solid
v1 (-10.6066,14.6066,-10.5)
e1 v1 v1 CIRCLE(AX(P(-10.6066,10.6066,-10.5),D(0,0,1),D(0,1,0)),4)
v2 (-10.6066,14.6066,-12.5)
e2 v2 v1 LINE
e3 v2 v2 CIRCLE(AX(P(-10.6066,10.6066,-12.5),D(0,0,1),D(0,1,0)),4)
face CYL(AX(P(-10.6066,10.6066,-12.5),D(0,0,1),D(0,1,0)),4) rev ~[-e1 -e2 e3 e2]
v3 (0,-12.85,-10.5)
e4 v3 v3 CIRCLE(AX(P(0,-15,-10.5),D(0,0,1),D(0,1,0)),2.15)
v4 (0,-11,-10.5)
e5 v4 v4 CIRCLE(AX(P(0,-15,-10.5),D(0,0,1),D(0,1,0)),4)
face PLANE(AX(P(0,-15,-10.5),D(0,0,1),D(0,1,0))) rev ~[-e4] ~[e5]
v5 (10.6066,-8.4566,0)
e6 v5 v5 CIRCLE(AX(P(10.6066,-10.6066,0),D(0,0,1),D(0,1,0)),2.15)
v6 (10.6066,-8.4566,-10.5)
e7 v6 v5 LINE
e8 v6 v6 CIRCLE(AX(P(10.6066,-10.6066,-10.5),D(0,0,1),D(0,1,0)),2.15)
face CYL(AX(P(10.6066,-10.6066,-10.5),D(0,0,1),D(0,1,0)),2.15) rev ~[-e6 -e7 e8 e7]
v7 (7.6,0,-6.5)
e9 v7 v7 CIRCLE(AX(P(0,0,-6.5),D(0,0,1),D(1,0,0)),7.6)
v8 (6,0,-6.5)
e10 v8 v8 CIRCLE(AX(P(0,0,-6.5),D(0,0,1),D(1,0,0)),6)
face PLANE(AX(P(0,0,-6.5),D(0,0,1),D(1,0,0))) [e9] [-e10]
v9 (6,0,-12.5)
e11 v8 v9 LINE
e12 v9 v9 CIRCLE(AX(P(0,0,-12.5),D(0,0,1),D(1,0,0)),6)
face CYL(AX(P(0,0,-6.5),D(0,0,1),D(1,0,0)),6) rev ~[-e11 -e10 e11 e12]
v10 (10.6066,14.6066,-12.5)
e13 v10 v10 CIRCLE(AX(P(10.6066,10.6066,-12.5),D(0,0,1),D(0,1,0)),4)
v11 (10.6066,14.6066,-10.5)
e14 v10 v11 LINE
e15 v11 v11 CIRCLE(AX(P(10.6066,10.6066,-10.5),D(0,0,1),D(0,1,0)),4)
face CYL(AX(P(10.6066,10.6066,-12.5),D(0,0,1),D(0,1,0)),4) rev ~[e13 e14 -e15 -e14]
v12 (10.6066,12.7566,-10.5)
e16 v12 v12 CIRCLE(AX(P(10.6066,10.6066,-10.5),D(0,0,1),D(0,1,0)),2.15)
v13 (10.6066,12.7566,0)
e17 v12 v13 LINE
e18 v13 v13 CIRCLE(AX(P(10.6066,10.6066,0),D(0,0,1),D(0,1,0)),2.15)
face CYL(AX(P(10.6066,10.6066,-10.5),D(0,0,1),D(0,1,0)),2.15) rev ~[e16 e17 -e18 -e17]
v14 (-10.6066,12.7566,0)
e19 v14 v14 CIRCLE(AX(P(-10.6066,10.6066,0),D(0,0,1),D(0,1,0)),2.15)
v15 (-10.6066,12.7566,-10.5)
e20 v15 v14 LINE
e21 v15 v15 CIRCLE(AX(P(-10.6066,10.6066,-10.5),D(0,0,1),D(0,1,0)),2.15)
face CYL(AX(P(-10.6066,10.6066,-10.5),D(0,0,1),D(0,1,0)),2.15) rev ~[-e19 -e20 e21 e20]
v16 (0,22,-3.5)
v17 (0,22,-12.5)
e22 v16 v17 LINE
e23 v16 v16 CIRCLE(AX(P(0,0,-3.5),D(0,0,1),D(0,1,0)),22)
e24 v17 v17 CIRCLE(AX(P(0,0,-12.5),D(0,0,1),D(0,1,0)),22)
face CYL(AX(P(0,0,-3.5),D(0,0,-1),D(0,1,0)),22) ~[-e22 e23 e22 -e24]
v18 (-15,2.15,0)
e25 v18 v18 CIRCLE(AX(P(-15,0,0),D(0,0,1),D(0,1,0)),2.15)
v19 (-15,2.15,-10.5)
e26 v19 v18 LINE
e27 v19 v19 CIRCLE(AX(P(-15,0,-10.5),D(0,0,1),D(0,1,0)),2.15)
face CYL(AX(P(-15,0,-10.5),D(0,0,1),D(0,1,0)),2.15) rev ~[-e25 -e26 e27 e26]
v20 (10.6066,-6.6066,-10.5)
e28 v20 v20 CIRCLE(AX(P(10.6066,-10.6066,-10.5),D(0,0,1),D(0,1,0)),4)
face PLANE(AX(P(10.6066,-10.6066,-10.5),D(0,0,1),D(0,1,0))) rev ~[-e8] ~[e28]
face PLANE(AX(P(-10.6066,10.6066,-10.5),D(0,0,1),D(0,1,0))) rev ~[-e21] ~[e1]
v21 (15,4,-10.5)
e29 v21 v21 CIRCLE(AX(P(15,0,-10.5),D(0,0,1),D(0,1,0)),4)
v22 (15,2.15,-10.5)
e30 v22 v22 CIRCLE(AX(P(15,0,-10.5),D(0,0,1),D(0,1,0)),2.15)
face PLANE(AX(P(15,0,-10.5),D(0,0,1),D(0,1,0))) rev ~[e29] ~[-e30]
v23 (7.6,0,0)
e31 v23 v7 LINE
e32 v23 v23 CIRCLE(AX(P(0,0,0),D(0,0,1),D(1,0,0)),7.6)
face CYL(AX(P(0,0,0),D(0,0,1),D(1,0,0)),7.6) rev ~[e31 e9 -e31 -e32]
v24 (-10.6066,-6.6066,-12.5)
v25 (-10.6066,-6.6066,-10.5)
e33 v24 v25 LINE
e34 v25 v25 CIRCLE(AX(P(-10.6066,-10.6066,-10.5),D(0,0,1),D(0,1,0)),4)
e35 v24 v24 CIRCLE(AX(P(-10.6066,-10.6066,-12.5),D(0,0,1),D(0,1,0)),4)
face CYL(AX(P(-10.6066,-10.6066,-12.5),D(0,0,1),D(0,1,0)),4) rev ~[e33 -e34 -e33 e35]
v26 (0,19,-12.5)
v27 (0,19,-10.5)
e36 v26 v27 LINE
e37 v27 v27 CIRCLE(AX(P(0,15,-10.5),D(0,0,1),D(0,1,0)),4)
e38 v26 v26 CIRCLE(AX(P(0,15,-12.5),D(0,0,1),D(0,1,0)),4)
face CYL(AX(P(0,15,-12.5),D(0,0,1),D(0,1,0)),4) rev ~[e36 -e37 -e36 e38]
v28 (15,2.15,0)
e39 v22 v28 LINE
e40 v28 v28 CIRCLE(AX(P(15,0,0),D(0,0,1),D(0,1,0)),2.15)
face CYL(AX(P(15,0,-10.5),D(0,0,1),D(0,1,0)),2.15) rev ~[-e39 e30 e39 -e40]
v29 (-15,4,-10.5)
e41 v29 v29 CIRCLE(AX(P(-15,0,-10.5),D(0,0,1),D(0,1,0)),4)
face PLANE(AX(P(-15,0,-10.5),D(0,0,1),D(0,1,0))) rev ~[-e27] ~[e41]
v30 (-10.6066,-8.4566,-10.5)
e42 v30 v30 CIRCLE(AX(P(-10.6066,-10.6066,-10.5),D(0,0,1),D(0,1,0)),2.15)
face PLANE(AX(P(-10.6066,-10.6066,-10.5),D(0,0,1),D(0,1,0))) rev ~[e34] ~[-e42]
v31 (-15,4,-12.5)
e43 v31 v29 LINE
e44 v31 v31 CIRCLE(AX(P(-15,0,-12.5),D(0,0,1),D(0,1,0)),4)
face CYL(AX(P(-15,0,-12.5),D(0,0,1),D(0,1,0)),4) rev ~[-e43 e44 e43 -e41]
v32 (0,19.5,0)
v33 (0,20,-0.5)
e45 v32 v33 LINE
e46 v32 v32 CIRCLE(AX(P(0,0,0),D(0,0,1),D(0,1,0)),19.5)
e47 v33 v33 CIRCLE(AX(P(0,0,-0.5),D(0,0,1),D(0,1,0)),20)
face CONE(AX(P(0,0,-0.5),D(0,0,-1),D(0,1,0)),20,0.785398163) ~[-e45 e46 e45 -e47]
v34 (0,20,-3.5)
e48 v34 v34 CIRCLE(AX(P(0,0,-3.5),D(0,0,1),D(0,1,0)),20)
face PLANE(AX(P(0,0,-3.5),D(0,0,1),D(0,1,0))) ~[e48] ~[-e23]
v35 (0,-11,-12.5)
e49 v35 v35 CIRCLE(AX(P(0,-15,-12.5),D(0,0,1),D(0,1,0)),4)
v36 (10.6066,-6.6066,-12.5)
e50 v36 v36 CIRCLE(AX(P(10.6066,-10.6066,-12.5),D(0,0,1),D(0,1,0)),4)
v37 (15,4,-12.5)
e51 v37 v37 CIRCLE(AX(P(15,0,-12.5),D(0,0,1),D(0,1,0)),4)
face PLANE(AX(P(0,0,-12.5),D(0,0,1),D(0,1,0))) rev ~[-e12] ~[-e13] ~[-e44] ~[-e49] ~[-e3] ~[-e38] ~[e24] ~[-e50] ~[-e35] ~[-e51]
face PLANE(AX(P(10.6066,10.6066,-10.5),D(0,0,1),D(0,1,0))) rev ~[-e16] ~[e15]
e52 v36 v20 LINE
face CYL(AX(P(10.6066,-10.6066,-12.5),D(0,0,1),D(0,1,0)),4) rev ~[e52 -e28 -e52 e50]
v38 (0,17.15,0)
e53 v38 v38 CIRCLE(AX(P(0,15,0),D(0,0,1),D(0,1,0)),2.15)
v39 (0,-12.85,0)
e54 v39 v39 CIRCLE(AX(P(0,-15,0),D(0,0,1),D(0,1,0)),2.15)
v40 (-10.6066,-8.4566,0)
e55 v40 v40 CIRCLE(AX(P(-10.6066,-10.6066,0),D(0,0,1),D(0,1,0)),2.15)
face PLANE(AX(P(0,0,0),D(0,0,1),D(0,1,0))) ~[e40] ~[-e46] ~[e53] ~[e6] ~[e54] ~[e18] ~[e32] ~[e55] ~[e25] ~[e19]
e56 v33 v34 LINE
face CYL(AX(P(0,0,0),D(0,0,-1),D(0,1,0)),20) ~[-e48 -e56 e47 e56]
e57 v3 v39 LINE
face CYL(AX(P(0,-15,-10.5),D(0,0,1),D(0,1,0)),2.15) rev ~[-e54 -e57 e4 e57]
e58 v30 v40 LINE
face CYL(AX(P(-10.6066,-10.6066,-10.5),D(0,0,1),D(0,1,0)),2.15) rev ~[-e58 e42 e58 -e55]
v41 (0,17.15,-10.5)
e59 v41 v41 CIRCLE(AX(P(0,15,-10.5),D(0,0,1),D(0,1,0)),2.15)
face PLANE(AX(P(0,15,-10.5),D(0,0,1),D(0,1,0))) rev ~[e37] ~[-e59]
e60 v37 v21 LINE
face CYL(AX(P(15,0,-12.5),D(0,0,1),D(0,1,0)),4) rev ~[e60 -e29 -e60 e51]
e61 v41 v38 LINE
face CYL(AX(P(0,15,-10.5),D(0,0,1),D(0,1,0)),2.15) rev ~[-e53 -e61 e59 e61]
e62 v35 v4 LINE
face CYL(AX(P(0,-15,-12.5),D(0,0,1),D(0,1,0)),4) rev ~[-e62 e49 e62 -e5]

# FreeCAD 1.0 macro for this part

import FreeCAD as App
import Part
import Sketcher
from FreeCAD import Vector
Q = App.Units.Quantity


def edges_at(feature, points):
    """Names of the edges that pass closest to the given points."""
    edges = feature.Shape.Edges
    near = lambda p: min(range(len(edges)), key=lambda i: edges[i].distToShape(Part.Vertex(*p))[0])
    return sorted({f"Edge{near(p) + 1}" for p in points})


def add_polygon(sketch, points):
    """Adds a closed chain of lines whose ends are joined by coincident constraints."""
    first, n = sketch.GeometryCount, len(points)
    for a, b in zip(points, points[1:] + points[:1]):
        sketch.addGeometry(Part.LineSegment(App.Vector(*a, 0), App.Vector(*b, 0)), False)
    for i in range(n):
        sketch.addConstraint(Sketcher.Constraint("Coincident", first + i, 2, first + (i + 1) % n, 1))

doc = App.newDocument("Part")
body = doc.addObject("PartDesign::Body", "Body")

# Sketch on YZ plane
sketch1 = body.newObject("Sketcher::SketchObject", "Sketch")
sketch1.AttachmentSupport = (doc.getObject("YZ_Plane"), [""])
sketch1.MapMode = "FlatFace"
add_polygon(sketch1, [(0, 0), (0, -12.5), (22, -12.5), (22, -3.5), (20, -3.5), (20, 0)])  # lines 0-5
sketch1.addConstraint([
    Sketcher.Constraint("Vertical", 0),
    Sketcher.Constraint("Horizontal", 1),
    Sketcher.Constraint("Vertical", 2),
    Sketcher.Constraint("Horizontal", 3),
    Sketcher.Constraint("Vertical", 4),
    Sketcher.Constraint("Horizontal", 5),
    Sketcher.Constraint("Coincident", 5, 2, -1, 1),
    Sketcher.Constraint("DistanceX", 3, 2, 3, 1, Q("2 mm")),
    Sketcher.Constraint("DistanceX", 5, 2, 5, 1, Q("20 mm")),
    Sketcher.Constraint("DistanceY", 2, 1, 2, 2, Q("9 mm")),
    Sketcher.Constraint("DistanceY", 4, 1, 4, 2, Q("3.5 mm")),
])
revolution = body.newObject("PartDesign::Revolution", "Revolution")
revolution.Profile = sketch1
revolution.ReferenceAxis = (sketch1, ["V_Axis"])
revolution.Angle = 360
doc.recompute()

chamfer = body.newObject("PartDesign::Chamfer", "Chamfer")
chamfer.Base = (revolution, edges_at(revolution, [(0, -20, 0)]))
chamfer.Size = 0.5

# Sketch on XY plane
sketch2 = body.newObject("Sketcher::SketchObject", "Sketch001")
sketch2.AttachmentSupport = (doc.getObject("XY_Plane"), [""])
sketch2.MapMode = "FlatFace"
sketch2.AttachmentOffset = App.Placement(Vector(0, 0, -12.5), App.Rotation())
sketch2.addGeometry([
    Part.Circle(Vector(-10.6, 10.6, 0), Vector(0, 0, 1), 2.1),  # 0
    Part.Circle(Vector(-15, 0, 0), Vector(0, 0, 1), 2.1),  # 1
    Part.Circle(Vector(-10.6, -10.6, 0), Vector(0, 0, 1), 2.1),  # 2
    Part.Circle(Vector(0, -15, 0), Vector(0, 0, 1), 2.1),  # 3
    Part.Circle(Vector(10.6, -10.6, 0), Vector(0, 0, 1), 2.1),  # 4
    Part.Circle(Vector(15, 0, 0), Vector(0, 0, 1), 2.1),  # 5
    Part.Circle(Vector(10.6, 10.6, 0), Vector(0, 0, 1), 2.1),  # 6
    Part.Circle(Vector(0, 15, 0), Vector(0, 0, 1), 2.1),  # 7
], False)
sketch2.addConstraint([
    Sketcher.Constraint("Equal", 0, 1),
    Sketcher.Constraint("Equal", 1, 2),
    Sketcher.Constraint("Equal", 2, 3),
    Sketcher.Constraint("Equal", 3, 4),
    Sketcher.Constraint("Equal", 4, 5),
    Sketcher.Constraint("Equal", 5, 6),
    Sketcher.Constraint("Equal", 6, 7),
    Sketcher.Constraint("Symmetric", 0, 3, 4, 3, -1, 1),
    Sketcher.Constraint("Symmetric", 1, 3, 5, 3, -1, 1),
    Sketcher.Constraint("Symmetric", 2, 3, 6, 3, -1, 1),
    Sketcher.Constraint("Symmetric", 3, 3, 7, 3, -1, 1),
    Sketcher.Constraint("Symmetric", 2, 3, 4, 3, -2),
    Sketcher.Constraint("PointOnObject", 1, 3, -1),
    Sketcher.Constraint("PointOnObject", 3, 3, -2),
    Sketcher.Constraint("Diameter", 0, Q("4.3 mm")),
    Sketcher.Constraint("DistanceX", 1, 3, -1, 1, Q("15 mm")),
    Sketcher.Constraint("DistanceY", 3, 3, -1, 1, Q("15 mm")),
    Sketcher.Constraint("DistanceX", 0, 3, -1, 1, Q("10.6066 mm")),
    Sketcher.Constraint("DistanceY", -1, 1, 0, 3, Q("10.6066 mm")),
])
doc.recompute()
hole = body.newObject("PartDesign::Hole", "Hole")
hole.Profile = sketch2
hole.ThreadType = "None"
hole.Diameter = 4.3
hole.DepthType = "ThroughAll"
hole.HoleCutType = "Counterbore"
hole.HoleCutDiameter = 8
hole.HoleCutDepth = 2
hole.Reversed = True

# Sketch on XY plane
sketch3 = body.newObject("Sketcher::SketchObject", "Sketch002")
sketch3.AttachmentSupport = (doc.getObject("XY_Plane"), [""])
sketch3.MapMode = "FlatFace"
sketch3.addGeometry(Part.Circle(Vector(0, 0, 0), Vector(0, 0, 1), 8), False)
sketch3.addConstraint([
    Sketcher.Constraint("Coincident", 0, 3, -1, 1),
    Sketcher.Constraint("Diameter", 0, Q("15.2 mm")),
])
pocket1 = body.newObject("PartDesign::Pocket", "Pocket")
pocket1.Profile = sketch3
pocket1.Length = 6.5

# Sketch on XY plane
sketch4 = body.newObject("Sketcher::SketchObject", "Sketch003")
sketch4.AttachmentSupport = (doc.getObject("XY_Plane"), [""])
sketch4.MapMode = "FlatFace"
sketch4.AttachmentOffset = App.Placement(Vector(0, 0, -6.5), App.Rotation())
sketch4.addGeometry(Part.Circle(Vector(0, 0, 0), Vector(0, 0, 1), 6), False)
sketch4.addConstraint([
    Sketcher.Constraint("Coincident", 0, 3, -1, 1),
    Sketcher.Constraint("Diameter", 0, Q("12 mm")),
])
pocket2 = body.newObject("PartDesign::Pocket", "Pocket001")
pocket2.Profile = sketch4
pocket2.Type = "ThroughAll"

doc.recompute()
